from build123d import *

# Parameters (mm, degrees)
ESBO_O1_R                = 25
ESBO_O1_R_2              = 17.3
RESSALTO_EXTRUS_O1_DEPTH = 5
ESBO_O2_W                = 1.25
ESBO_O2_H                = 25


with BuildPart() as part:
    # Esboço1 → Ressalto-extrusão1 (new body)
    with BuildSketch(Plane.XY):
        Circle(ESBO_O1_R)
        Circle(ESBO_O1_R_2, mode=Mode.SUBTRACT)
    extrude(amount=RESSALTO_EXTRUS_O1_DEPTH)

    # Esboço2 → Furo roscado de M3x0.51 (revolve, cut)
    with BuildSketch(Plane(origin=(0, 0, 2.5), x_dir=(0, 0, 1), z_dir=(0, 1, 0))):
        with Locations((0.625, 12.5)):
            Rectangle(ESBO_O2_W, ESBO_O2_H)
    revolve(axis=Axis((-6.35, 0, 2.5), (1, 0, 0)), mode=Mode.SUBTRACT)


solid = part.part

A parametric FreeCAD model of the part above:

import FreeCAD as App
import Part
import Sketcher

V = App.Vector

doc = App.newDocument("Part")
body = doc.addObject("PartDesign::Body", "Body")

sketch1 = doc.addObject("Sketcher::SketchObject", "Sketch")
body.addObject(sketch1)
sketch1.AttachmentSupport = (doc.XY_Plane, [""])
sketch1.MapMode = "FlatFace"
sketch1.addGeometry(Part.Circle(V(0, 0, 0), V(0, 0, 1), 25), False)
sketch1.addGeometry(Part.Circle(V(0, 0, 0), V(0, 0, 1), 17.3), False)
sketch1.addConstraint(Sketcher.Constraint("Coincident", 0, 3, -1, 1))
sketch1.addConstraint(Sketcher.Constraint("Coincident", 1, 3, -1, 1))
sketch1.addConstraint(Sketcher.Constraint("Diameter", 0, 50.0))
sketch1.addConstraint(Sketcher.Constraint("Diameter", 1, 34.6))
pad1 = doc.addObject("PartDesign::Pad", "Pad")
body.addObject(pad1)
pad1.Profile = sketch1
pad1.Length = 5

sketch2 = doc.addObject("Sketcher::SketchObject", "Sketch001")
body.addObject(sketch2)
sketch2.AttachmentSupport = (doc.XZ_Plane, [""])
sketch2.MapMode = "FlatFace"
sketch2.addGeometry(Part.LineSegment(V(25, 2.5, 0), V(0, 2.5, 0)), False)
sketch2.addGeometry(Part.LineSegment(V(0, 2.5, 0), V(0, 3.75, 0)), False)
sketch2.addGeometry(Part.LineSegment(V(0, 3.75, 0), V(25, 3.75, 0)), False)
sketch2.addGeometry(Part.LineSegment(V(25, 3.75, 0), V(25, 2.5, 0)), False)
sketch2.addGeometry(Part.LineSegment(V(0, 2.5, 0), V(25, 2.5, 0)), True)
sketch2.addConstraint(Sketcher.Constraint("Coincident", 0, 2, 1, 1))
sketch2.addConstraint(Sketcher.Constraint("Coincident", 1, 2, 2, 1))
sketch2.addConstraint(Sketcher.Constraint("Coincident", 2, 2, 3, 1))
sketch2.addConstraint(Sketcher.Constraint("Coincident", 3, 2, 0, 1))
sketch2.addConstraint(Sketcher.Constraint("Horizontal", 0))
sketch2.addConstraint(Sketcher.Constraint("Vertical", 1))
sketch2.addConstraint(Sketcher.Constraint("Horizontal", 2))
sketch2.addConstraint(Sketcher.Constraint("Vertical", 3))
sketch2.addConstraint(Sketcher.Constraint("Horizontal", 4))
sketch2.addConstraint(Sketcher.Constraint("Coincident", 4, 1, 0, 2))
sketch2.addConstraint(Sketcher.Constraint("PointOnObject", 0, 2, -2))
sketch2.addConstraint(Sketcher.Constraint("Vertical", 2, 2, 4, 2))
sketch2.addConstraint(Sketcher.Constraint("DistanceX", 0, 2, 0, 1, 25.0))
sketch2.addConstraint(Sketcher.Constraint("DistanceY", 1, 1, 1, 2, 1.25))
sketch2.addConstraint(Sketcher.Constraint("DistanceY", -1, 1, 0, 2, 2.5))
groove = doc.addObject("PartDesign::Groove", "Groove")
body.addObject(groove)
groove.Profile = sketch2
groove.ReferenceAxis = (sketch2, ["Axis0"])
groove.Angle = 360

doc.recompute()
